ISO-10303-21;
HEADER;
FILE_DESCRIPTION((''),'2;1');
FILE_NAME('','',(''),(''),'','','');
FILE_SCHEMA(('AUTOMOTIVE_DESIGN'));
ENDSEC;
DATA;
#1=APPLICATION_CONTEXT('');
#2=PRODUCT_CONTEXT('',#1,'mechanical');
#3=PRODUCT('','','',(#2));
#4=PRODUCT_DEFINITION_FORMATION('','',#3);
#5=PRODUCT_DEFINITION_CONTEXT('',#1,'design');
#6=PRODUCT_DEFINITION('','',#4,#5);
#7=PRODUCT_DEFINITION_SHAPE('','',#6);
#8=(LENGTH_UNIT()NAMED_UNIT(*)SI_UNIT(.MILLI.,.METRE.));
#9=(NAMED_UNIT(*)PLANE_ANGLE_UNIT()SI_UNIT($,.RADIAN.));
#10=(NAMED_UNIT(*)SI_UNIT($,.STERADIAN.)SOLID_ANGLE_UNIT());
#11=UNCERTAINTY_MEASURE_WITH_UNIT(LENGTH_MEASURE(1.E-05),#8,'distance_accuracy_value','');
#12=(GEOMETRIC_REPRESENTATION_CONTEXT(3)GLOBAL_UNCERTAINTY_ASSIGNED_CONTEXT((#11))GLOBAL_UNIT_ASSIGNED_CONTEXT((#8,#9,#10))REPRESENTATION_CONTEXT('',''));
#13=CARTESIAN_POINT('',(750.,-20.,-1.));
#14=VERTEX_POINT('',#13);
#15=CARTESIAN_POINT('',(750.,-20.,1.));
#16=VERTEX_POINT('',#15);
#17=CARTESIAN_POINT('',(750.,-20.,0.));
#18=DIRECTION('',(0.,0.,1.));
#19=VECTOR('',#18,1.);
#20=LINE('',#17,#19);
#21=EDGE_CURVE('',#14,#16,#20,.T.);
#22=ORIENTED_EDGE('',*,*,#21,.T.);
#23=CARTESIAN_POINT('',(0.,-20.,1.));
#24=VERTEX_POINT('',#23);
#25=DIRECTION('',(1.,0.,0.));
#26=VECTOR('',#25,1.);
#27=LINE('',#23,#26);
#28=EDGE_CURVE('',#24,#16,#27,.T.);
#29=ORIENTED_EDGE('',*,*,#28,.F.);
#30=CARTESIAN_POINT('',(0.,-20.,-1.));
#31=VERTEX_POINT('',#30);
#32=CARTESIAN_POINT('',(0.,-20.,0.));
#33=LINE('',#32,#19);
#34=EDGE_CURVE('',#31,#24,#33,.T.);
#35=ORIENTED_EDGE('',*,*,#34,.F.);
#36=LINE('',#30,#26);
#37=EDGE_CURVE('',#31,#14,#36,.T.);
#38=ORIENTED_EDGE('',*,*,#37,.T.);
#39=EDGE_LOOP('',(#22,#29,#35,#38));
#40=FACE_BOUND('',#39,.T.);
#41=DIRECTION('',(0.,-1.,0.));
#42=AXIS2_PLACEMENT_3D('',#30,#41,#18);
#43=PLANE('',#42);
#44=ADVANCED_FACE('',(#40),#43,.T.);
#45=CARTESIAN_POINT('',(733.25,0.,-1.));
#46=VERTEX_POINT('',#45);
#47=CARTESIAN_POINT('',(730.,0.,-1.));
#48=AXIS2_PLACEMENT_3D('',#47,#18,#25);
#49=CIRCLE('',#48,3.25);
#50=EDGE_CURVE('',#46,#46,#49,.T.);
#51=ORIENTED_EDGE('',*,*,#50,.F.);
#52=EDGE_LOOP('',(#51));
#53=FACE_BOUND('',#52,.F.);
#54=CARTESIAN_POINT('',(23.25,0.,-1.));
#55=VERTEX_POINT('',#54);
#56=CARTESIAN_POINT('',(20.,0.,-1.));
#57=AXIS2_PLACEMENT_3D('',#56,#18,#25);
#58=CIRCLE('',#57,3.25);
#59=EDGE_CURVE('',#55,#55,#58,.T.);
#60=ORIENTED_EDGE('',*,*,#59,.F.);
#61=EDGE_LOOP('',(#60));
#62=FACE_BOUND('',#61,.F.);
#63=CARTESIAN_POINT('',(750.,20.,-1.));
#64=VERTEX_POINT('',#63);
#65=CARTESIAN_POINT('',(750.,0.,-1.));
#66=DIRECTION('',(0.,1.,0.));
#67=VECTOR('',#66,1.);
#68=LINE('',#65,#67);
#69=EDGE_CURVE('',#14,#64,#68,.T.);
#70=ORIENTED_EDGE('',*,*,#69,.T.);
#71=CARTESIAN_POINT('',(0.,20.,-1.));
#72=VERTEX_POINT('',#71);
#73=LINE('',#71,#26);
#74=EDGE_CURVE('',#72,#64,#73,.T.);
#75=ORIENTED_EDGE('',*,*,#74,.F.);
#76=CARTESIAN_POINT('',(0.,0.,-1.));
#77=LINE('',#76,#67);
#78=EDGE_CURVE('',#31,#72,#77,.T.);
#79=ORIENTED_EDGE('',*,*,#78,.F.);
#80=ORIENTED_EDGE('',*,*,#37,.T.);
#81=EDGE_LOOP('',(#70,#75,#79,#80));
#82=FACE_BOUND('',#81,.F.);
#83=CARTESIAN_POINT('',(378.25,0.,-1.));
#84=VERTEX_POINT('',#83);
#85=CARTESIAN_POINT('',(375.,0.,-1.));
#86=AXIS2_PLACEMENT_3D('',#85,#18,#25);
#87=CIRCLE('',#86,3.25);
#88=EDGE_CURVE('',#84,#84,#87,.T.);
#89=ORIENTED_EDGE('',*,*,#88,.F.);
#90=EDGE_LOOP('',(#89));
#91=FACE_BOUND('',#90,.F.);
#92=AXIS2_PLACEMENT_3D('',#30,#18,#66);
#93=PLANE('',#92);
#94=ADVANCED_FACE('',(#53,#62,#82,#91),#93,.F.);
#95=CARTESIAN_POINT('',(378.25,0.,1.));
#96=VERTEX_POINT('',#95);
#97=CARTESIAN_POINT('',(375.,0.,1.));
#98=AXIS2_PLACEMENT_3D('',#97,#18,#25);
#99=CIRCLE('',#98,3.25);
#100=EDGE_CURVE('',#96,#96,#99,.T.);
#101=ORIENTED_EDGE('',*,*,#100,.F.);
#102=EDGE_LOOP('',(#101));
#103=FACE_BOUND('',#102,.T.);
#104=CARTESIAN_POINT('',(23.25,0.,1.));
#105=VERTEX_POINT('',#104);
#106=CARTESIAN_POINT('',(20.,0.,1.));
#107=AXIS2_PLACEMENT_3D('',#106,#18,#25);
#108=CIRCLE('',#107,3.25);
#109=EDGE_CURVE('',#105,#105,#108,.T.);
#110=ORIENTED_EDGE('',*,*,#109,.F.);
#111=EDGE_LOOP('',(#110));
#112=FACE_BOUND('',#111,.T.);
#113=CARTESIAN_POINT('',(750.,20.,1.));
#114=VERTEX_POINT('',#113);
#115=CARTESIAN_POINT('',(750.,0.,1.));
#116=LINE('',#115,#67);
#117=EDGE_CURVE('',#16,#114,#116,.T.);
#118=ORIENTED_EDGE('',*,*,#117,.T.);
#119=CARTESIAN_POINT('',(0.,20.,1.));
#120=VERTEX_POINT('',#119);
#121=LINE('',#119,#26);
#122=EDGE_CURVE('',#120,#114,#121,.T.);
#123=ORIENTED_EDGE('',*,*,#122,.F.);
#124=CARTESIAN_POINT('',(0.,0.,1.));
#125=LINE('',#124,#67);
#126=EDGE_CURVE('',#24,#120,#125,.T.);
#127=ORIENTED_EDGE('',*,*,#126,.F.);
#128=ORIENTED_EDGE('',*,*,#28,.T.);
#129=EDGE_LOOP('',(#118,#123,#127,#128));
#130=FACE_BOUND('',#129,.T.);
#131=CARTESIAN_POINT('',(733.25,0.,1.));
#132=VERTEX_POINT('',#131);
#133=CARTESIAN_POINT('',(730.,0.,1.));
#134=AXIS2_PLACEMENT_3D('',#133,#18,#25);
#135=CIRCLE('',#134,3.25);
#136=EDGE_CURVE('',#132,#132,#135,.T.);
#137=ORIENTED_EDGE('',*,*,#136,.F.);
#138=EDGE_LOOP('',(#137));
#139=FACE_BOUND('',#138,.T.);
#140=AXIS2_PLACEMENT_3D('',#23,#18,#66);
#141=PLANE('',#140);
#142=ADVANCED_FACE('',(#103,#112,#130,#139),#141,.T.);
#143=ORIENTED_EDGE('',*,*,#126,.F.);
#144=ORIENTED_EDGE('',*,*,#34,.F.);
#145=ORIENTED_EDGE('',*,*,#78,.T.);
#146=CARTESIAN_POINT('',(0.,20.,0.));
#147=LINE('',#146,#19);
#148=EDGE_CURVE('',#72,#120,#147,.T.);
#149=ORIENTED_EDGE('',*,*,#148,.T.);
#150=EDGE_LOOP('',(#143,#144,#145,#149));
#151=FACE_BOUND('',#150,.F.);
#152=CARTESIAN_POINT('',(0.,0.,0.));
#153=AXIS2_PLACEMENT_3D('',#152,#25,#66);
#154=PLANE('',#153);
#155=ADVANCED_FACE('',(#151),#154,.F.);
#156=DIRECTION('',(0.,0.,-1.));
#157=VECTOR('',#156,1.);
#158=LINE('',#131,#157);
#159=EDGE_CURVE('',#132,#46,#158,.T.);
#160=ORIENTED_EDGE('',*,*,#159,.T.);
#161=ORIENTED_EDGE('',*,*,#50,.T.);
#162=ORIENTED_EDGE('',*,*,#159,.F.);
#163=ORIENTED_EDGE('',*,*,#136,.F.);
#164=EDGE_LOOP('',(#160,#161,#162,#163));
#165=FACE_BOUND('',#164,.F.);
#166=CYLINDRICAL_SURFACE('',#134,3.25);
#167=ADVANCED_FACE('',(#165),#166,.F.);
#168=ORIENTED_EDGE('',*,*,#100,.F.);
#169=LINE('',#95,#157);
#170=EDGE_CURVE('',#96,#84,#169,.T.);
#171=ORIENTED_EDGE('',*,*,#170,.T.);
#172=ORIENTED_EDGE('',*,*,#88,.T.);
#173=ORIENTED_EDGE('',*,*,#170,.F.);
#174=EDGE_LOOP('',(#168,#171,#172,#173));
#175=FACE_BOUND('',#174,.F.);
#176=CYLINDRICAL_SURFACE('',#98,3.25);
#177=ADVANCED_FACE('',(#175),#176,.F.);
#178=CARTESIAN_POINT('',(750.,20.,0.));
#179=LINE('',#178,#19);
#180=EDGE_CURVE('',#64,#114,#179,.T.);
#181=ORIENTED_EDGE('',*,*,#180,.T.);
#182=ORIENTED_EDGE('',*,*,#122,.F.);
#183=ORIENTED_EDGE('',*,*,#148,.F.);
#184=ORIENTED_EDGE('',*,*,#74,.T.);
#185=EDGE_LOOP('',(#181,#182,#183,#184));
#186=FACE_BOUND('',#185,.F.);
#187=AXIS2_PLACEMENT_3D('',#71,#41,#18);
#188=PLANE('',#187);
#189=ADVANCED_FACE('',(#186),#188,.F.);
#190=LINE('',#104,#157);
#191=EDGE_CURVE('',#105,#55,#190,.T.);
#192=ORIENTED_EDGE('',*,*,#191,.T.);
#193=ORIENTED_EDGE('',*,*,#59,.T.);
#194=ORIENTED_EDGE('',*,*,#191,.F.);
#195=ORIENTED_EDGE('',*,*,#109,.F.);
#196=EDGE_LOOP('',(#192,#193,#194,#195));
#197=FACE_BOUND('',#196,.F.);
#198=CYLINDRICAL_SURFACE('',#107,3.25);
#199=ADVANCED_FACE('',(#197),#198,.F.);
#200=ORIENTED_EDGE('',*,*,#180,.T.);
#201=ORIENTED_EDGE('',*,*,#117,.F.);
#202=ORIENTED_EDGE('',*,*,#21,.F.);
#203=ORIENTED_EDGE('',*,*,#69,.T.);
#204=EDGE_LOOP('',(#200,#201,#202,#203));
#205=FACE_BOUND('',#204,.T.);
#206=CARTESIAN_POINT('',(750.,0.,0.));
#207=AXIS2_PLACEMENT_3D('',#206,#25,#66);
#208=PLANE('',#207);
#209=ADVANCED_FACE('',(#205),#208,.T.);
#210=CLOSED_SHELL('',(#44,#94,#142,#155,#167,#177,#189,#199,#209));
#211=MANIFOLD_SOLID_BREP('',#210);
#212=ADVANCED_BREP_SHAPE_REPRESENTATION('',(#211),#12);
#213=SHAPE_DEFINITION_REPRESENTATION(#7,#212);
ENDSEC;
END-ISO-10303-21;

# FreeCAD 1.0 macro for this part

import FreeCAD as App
import Part
import Sketcher

V = App.Vector

doc = App.newDocument("Part")
body = doc.addObject("PartDesign::Body", "Body")

# Sketch on YZ plane
sketch1 = body.newObject("Sketcher::SketchObject", "Sketch")
sketch1.AttachmentSupport = (doc.getObject("YZ_Plane"), [""])
sketch1.MapMode = "FlatFace"
sketch1.addGeometry(Part.LineSegment(V(-20, 1, 0), V(-20, -1, 0)), False)
sketch1.addGeometry(Part.LineSegment(V(-20, -1, 0), V(20, -1, 0)), False)
sketch1.addGeometry(Part.LineSegment(V(20, -1, 0), V(20, 1, 0)), False)
sketch1.addGeometry(Part.LineSegment(V(20, 1, 0), V(-20, 1, 0)), False)
sketch1.addConstraint(Sketcher.Constraint("Coincident", 0, 2, 1, 1))
sketch1.addConstraint(Sketcher.Constraint("Coincident", 1, 2, 2, 1))
sketch1.addConstraint(Sketcher.Constraint("Coincident", 2, 2, 3, 1))
sketch1.addConstraint(Sketcher.Constraint("Coincident", 3, 2, 0, 1))
sketch1.addConstraint(Sketcher.Constraint("Vertical", 0))
sketch1.addConstraint(Sketcher.Constraint("Horizontal", 1))
sketch1.addConstraint(Sketcher.Constraint("Vertical", 2))
sketch1.addConstraint(Sketcher.Constraint("Horizontal", 3))
sketch1.addConstraint(Sketcher.Constraint("Symmetric", 0, 2, 2, 2, -1, 1))
sketch1.addConstraint(Sketcher.Constraint("DistanceX", 1, 1, 1, 2, 40.0))
sketch1.addConstraint(Sketcher.Constraint("DistanceY", 0, 2, 0, 1, 2.0))
pad1 = body.newObject("PartDesign::Pad", "Pad")
pad1.Profile = sketch1
pad1.Length = 750

# Sketch on XY plane
sketch2 = body.newObject("Sketcher::SketchObject", "Sketch001")
sketch2.AttachmentSupport = (doc.getObject("XY_Plane"), [""])
sketch2.MapMode = "FlatFace"
sketch2.AttachmentOffset = App.Placement(V(0, 0, 1), App.Rotation())
sketch2.addGeometry(Part.Circle(V(730, 0, 0), V(0, 0, 1), 3.2), False)
sketch2.addGeometry(Part.Circle(V(20, 0, 0), V(0, 0, 1), 3.2), False)
sketch2.addGeometry(Part.Circle(V(375, 0, 0), V(0, 0, 1), 3.2), False)
sketch2.addConstraint(Sketcher.Constraint("Equal", 0, 1))
sketch2.addConstraint(Sketcher.Constraint("Equal", 1, 2))
sketch2.addConstraint(Sketcher.Constraint("PointOnObject", 0, 3, -1))
sketch2.addConstraint(Sketcher.Constraint("PointOnObject", 1, 3, -1))
sketch2.addConstraint(Sketcher.Constraint("PointOnObject", 2, 3, -1))
sketch2.addConstraint(Sketcher.Constraint("Diameter", 0, 6.5))
sketch2.addConstraint(Sketcher.Constraint("DistanceX", -1, 1, 0, 3, 730.0))
sketch2.addConstraint(Sketcher.Constraint("DistanceX", -1, 1, 1, 3, 20.0))
sketch2.addConstraint(Sketcher.Constraint("DistanceX", -1, 1, 2, 3, 375.0))
pocket1 = body.newObject("PartDesign::Pocket", "Pocket")
pocket1.Profile = sketch2
pocket1.Length = 25

doc.recompute()
